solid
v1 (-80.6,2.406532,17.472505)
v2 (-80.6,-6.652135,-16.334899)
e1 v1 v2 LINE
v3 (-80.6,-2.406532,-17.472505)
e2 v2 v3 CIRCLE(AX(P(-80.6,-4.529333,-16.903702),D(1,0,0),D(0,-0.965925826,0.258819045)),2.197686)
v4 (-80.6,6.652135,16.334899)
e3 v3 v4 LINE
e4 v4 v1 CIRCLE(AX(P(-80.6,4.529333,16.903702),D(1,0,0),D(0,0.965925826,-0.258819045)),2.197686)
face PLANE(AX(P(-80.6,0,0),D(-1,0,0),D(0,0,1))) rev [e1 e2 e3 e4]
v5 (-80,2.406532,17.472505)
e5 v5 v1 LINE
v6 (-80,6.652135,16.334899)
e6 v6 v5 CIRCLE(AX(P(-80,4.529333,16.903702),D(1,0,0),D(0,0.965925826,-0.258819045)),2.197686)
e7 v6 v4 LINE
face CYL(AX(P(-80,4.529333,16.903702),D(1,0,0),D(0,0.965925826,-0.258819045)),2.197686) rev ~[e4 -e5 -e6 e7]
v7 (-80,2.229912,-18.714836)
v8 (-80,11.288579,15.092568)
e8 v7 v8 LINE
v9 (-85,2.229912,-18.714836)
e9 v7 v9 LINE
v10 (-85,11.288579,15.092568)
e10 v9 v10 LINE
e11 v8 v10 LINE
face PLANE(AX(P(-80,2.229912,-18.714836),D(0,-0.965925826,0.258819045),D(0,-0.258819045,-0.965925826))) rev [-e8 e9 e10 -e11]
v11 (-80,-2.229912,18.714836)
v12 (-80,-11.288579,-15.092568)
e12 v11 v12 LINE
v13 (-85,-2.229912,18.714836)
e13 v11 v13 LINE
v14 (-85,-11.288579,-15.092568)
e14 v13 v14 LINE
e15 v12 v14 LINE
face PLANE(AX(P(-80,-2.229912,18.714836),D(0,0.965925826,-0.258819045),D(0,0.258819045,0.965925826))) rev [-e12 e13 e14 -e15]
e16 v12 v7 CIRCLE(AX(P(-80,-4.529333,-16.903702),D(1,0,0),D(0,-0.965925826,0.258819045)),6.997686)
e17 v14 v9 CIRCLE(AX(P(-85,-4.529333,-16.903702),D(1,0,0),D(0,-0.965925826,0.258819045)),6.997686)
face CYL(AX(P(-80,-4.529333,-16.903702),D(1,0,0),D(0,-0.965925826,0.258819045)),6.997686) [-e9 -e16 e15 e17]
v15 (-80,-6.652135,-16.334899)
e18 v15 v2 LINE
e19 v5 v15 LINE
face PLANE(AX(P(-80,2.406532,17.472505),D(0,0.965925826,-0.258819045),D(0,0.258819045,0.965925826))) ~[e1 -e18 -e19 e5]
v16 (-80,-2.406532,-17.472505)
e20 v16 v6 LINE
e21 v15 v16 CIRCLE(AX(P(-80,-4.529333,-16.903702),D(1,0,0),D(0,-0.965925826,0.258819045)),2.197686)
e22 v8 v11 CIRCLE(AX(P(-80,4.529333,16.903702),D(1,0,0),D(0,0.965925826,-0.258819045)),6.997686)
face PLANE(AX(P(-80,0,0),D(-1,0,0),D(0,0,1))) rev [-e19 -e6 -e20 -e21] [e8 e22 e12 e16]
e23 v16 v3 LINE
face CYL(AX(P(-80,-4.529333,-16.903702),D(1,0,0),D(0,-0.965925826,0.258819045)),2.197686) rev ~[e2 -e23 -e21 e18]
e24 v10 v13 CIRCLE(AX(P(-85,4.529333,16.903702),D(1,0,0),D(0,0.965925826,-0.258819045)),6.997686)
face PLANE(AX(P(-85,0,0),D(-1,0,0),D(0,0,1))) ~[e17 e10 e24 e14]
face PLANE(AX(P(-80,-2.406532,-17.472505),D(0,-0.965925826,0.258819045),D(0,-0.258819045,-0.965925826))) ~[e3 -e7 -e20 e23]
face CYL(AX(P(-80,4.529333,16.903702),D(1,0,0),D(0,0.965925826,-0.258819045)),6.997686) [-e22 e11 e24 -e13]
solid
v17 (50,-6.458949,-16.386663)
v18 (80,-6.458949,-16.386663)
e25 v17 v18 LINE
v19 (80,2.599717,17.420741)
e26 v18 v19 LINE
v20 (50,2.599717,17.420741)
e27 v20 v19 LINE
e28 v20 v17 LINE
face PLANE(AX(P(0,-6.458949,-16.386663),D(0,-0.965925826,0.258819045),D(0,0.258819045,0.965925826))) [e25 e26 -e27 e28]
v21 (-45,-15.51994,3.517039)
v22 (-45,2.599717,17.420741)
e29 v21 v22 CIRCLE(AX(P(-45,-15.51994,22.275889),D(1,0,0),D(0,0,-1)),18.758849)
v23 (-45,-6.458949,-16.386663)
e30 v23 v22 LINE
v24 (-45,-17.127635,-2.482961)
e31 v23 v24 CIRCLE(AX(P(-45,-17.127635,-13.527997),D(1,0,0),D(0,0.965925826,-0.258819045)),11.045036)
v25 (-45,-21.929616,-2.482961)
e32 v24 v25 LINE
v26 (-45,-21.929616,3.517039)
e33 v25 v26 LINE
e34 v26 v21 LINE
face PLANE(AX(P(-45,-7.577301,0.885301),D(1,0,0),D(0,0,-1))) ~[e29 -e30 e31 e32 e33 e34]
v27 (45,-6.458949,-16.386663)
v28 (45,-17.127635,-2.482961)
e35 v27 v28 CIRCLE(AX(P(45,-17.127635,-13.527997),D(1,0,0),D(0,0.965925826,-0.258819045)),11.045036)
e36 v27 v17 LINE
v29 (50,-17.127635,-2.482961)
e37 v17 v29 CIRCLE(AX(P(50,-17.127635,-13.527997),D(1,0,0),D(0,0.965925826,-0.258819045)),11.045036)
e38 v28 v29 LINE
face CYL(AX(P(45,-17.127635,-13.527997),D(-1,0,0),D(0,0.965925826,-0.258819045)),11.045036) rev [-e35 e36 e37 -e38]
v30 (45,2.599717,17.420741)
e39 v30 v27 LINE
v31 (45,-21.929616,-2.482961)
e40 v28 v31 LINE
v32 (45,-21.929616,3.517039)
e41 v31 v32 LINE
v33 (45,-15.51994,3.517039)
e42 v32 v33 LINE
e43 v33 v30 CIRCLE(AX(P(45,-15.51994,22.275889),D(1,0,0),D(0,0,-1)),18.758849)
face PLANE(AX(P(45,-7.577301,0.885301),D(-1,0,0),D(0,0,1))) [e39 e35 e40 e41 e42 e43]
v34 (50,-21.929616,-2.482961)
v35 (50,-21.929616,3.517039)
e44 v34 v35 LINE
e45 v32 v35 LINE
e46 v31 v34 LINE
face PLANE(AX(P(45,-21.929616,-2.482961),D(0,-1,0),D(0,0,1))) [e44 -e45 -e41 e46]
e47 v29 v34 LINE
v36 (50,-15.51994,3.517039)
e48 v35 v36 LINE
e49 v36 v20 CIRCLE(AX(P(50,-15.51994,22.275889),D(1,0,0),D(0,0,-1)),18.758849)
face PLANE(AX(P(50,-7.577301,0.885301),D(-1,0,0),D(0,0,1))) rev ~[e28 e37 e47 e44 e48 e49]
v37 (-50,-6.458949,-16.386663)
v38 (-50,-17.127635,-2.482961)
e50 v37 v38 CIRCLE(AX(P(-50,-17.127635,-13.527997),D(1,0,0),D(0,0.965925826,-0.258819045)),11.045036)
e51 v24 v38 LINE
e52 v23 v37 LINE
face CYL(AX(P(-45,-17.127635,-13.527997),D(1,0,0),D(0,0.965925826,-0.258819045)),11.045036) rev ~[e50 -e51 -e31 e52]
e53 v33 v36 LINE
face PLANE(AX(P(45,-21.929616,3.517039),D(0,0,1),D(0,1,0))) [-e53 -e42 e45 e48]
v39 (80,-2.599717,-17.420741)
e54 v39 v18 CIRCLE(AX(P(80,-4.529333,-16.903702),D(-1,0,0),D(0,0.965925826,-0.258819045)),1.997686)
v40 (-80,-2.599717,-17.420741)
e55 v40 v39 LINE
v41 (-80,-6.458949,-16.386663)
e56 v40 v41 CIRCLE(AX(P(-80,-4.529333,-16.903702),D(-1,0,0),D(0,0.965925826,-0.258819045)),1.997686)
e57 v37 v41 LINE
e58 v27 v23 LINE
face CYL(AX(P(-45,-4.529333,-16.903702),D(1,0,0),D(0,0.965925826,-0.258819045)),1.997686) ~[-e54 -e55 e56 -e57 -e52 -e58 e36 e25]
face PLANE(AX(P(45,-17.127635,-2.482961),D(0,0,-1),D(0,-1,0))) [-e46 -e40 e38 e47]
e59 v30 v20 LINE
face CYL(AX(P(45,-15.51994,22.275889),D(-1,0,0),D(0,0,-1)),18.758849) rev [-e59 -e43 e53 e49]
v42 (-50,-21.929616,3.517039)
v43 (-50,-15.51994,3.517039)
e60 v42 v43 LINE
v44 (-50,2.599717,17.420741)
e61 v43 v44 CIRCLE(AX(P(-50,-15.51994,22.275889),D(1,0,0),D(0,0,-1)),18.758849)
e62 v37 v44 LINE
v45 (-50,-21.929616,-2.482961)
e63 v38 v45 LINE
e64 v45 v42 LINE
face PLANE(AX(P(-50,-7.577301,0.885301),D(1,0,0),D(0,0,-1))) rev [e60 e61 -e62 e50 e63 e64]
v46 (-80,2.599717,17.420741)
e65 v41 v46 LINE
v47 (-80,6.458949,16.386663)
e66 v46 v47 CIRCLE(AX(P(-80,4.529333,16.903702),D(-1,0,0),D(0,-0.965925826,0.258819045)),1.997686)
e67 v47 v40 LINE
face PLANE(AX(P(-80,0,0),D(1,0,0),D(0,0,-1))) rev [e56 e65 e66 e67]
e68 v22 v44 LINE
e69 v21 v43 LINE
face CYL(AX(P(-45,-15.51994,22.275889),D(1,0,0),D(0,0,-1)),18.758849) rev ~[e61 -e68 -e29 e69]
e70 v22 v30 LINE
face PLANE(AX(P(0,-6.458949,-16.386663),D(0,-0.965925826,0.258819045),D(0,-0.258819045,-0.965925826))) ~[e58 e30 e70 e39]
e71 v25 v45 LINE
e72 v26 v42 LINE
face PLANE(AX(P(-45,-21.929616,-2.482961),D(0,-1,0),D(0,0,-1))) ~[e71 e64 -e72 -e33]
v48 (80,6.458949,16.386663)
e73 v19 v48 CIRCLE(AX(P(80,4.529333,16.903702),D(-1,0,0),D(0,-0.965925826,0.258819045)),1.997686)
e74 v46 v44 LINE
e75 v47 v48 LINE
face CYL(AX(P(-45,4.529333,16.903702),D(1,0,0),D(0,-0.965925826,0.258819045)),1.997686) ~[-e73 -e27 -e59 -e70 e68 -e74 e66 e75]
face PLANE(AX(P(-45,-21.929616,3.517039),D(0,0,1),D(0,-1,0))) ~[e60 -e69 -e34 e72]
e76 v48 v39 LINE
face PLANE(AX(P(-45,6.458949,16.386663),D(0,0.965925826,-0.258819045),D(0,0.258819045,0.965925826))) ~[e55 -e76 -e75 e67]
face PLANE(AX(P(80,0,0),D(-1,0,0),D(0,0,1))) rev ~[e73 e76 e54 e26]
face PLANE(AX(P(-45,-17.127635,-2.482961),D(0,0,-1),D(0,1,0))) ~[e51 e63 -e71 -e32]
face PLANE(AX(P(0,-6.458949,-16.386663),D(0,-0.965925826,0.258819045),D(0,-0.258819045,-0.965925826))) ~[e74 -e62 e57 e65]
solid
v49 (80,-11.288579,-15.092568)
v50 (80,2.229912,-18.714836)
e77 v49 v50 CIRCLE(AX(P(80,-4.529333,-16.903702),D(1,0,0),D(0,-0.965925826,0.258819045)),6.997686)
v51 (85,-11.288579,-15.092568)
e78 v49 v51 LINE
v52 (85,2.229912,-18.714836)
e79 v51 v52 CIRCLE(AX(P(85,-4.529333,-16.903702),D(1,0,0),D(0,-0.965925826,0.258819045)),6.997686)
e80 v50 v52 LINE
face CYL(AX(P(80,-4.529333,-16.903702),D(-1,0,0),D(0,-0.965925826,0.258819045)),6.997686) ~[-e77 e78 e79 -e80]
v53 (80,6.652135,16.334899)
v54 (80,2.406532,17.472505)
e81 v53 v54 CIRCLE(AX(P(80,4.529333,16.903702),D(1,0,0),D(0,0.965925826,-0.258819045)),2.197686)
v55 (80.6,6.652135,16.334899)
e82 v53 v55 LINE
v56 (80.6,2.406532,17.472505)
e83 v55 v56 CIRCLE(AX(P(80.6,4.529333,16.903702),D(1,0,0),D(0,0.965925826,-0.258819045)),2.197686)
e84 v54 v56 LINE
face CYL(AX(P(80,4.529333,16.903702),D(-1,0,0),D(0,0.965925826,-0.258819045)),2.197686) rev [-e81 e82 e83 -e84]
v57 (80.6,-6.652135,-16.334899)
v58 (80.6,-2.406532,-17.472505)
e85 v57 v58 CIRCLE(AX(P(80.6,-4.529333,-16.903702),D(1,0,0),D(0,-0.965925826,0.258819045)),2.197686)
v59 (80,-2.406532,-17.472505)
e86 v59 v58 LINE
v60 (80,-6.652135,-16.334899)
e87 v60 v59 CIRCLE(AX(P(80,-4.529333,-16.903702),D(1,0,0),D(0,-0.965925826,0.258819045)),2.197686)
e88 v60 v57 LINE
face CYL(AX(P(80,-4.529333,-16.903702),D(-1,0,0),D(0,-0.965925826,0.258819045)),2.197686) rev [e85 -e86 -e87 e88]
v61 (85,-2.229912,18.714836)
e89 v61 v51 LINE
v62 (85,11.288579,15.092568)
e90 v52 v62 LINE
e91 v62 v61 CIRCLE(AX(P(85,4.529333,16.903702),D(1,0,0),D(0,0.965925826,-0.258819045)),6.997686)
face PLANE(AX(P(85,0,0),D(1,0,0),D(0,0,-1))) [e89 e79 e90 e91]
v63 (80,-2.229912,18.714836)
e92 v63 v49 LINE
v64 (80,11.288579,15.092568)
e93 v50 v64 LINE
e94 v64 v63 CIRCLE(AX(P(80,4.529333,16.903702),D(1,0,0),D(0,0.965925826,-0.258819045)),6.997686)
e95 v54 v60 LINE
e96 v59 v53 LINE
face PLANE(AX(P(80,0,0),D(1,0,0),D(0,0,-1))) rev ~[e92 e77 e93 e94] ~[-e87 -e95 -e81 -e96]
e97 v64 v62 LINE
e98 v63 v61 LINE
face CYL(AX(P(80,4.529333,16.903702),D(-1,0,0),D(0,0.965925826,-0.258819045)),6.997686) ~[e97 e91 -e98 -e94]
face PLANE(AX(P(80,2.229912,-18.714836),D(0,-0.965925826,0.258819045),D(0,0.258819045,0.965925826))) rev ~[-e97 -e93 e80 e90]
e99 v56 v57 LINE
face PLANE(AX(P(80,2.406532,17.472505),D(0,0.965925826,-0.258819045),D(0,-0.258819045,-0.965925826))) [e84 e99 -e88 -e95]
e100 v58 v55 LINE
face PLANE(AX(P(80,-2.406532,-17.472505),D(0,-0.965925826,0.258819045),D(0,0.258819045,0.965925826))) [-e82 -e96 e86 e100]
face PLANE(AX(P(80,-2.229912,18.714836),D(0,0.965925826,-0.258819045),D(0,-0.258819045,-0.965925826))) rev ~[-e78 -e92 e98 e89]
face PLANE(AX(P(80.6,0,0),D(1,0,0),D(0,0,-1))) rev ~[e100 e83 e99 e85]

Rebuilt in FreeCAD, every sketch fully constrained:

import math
import FreeCAD as App
import Part
import Sketcher

V = App.Vector
Q = App.Units.Quantity

doc = App.newDocument("Part")
body = doc.addObject("PartDesign::Body", "Body")

# Sketch on YZ plane
sketch1 = body.newObject("Sketcher::SketchObject", "Sketch")
sketch1.AttachmentSupport = (doc.getObject("YZ_Plane"), [""])
sketch1.MapMode = "FlatFace"
sketch1.addGeometry([
    Part.LineSegment(V(-2.6, -17.4, 0), V(6.5, 16.4, 0)),
    Part.ArcOfCircle(Part.Circle(V(4.5, 16.9, 0), V(0, 0, 1), 2), math.radians(-15), math.radians(165)),
    Part.LineSegment(V(2.6, 17.4, 0), V(-6.5, -16.4, 0)),
    Part.ArcOfCircle(Part.Circle(V(-4.5, -16.9, 0), V(0, 0, 1), 2), math.radians(165), math.radians(345)),
], False)
sketch1.addConstraint([
    Sketcher.Constraint("Tangent", 0, 2, 1, 1),
    Sketcher.Constraint("Tangent", 1, 2, 2, 1),
    Sketcher.Constraint("Tangent", 2, 2, 3, 1),
    Sketcher.Constraint("Tangent", 3, 2, 0, 1),
    Sketcher.Constraint("Equal", 1, 3),
    Sketcher.Constraint("Symmetric", 1, 3, 3, 3, -1, 1),
    Sketcher.Constraint("Angle", 0, Q("75 deg")),
    Sketcher.Constraint("Distance", 0, Q("35 mm")),
    Sketcher.Constraint("Radius", 1, Q("1.997686 mm")),
])
pad1 = body.newObject("PartDesign::Pad", "Pad")
pad1.Profile = sketch1
pad1.Length = 80

# Sketch on YZ plane
sketch2 = body.newObject("Sketcher::SketchObject", "Sketch001")
sketch2.AttachmentSupport = (doc.getObject("YZ_Plane"), [""])
sketch2.MapMode = "FlatFace"
sketch2.AttachmentOffset = App.Placement(V(0, 0, 45), App.Rotation())
sketch2.addGeometry([
    Part.ArcOfCircle(Part.Circle(V(-17.1, -13.5, 0), V(0, 0, 1), 11), math.radians(-15), math.radians(90)),  # 0
    Part.LineSegment(V(-17.1, -2.5, 0), V(-21.9, -2.5, 0)),  # 1
    Part.LineSegment(V(-21.9, -2.5, 0), V(-21.9, 3.5, 0)),  # 2
    Part.LineSegment(V(-21.9, 3.5, 0), V(-15.5, 3.5, 0)),  # 3
    Part.ArcOfCircle(Part.Circle(V(-15.5, 22.3, 0), V(0, 0, 1), 18.8), math.radians(-90), math.radians(-15)),  # 4
    Part.ArcOfCircle(Part.Circle(V(4.5, 16.9, 0), V(0, 0, 1), 2), math.radians(-15), math.radians(165)),  # 5
    Part.LineSegment(V(6.5, 16.4, 0), V(-2.6, -17.4, 0)),  # 6
    Part.ArcOfCircle(Part.Circle(V(-4.5, -16.9, 0), V(0, 0, 1), 2), math.radians(165), math.radians(345)),  # 7
], False)
sketch2.addConstraint([
    Sketcher.Constraint("Tangent", 0, 2, 1, 1),
    Sketcher.Constraint("Coincident", 1, 2, 2, 1),
    Sketcher.Constraint("Coincident", 2, 2, 3, 1),
    Sketcher.Constraint("Tangent", 3, 2, 4, 1),
    Sketcher.Constraint("Tangent", 4, 2, 5, 2),
    Sketcher.Constraint("Tangent", 5, 1, 6, 1),
    Sketcher.Constraint("Tangent", 6, 2, 7, 2),
    Sketcher.Constraint("Tangent", 7, 1, 0, 1),
    Sketcher.Constraint("Horizontal", 1),
    Sketcher.Constraint("Vertical", 2),
    Sketcher.Constraint("Horizontal", 3),
    Sketcher.Constraint("Equal", 5, 7),
    Sketcher.Constraint("Symmetric", 5, 3, 7, 3, -1, 1),
    Sketcher.Constraint("DistanceY", 2, 1, 2, 2, Q("6 mm")),
    Sketcher.Constraint("Angle", 6, Q("-105 deg")),
    Sketcher.Constraint("Distance", 6, Q("35 mm")),
    Sketcher.Constraint("Radius", 4, Q("18.758849 mm")),
    Sketcher.Constraint("Radius", 0, Q("11.045036 mm")),
    Sketcher.Constraint("Radius", 5, Q("1.997686 mm")),
    Sketcher.Constraint("DistanceX", 1, 2, 1, 1, Q("4.801981 mm")),
    Sketcher.Constraint("DistanceY", 0, 3, 5, 3, Q("30.431699 mm")),
])
pad2 = body.newObject("PartDesign::Pad", "Pad001")
pad2.Profile = sketch2
pad2.Length = 5
doc.recompute()

mirrored = body.newObject("PartDesign::Mirrored", "Mirrored")
mirrored.Originals = [pad1, pad2]
mirrored.MirrorPlane = (doc.getObject("YZ_Plane"), [""])
body.Tip = mirrored
body2 = doc.addObject("PartDesign::Body", "Body001")

# Sketch on YZ plane
sketch3 = body2.newObject("Sketcher::SketchObject", "Sketch002")
sketch3.AttachmentSupport = (doc.getObject("YZ_Plane001"), [""])
sketch3.MapMode = "FlatFace"
sketch3.AttachmentOffset = App.Placement(V(0, 0, 80), App.Rotation())
sketch3.addGeometry([
    Part.LineSegment(V(-2, 19, 0), V(-11, -15, 0)),
    Part.ArcOfCircle(Part.Circle(V(-5, -17, 0), V(0, 0, 1), 7), math.radians(165), math.radians(345)),
    Part.LineSegment(V(2, -19, 0), V(11, 15, 0)),
    Part.ArcOfCircle(Part.Circle(V(5, 17, 0), V(0, 0, 1), 7), math.radians(-15), math.radians(165)),
], False)
sketch3.addConstraint([
    Sketcher.Constraint("Tangent", 0, 2, 1, 1),
    Sketcher.Constraint("Tangent", 1, 2, 2, 1),
    Sketcher.Constraint("Tangent", 2, 2, 3, 1),
    Sketcher.Constraint("Tangent", 3, 2, 0, 1),
    Sketcher.Constraint("Equal", 1, 3),
    Sketcher.Constraint("Symmetric", 1, 3, 3, 3, -1, 1),
    Sketcher.Constraint("Angle", 0, Q("-105 deg")),
    Sketcher.Constraint("Distance", 0, Q("35 mm")),
    Sketcher.Constraint("Radius", 1, Q("6.997686 mm")),
])
pad3 = body2.newObject("PartDesign::Pad", "Pad002")
pad3.Profile = sketch3
pad3.Length = 5

# Sketch on YZ plane
sketch4 = body2.newObject("Sketcher::SketchObject", "Sketch003")
sketch4.AttachmentSupport = (doc.getObject("YZ_Plane001"), [""])
sketch4.MapMode = "FlatFace"
sketch4.AttachmentOffset = App.Placement(V(0, 0, 80), App.Rotation())
sketch4.addGeometry([
    Part.LineSegment(V(6.7, 16.3, 0), V(-2.4, -17.5, 0)),
    Part.ArcOfCircle(Part.Circle(V(-4.5, -16.9, 0), V(0, 0, 1), 2.2), math.radians(165), math.radians(345)),
    Part.LineSegment(V(-6.7, -16.3, 0), V(2.4, 17.5, 0)),
    Part.ArcOfCircle(Part.Circle(V(4.5, 16.9, 0), V(0, 0, 1), 2.2), math.radians(-15), math.radians(165)),
], False)
sketch4.addConstraint([
    Sketcher.Constraint("Tangent", 0, 2, 1, 2),
    Sketcher.Constraint("Tangent", 1, 1, 2, 1),
    Sketcher.Constraint("Tangent", 2, 2, 3, 2),
    Sketcher.Constraint("Tangent", 3, 1, 0, 1),
    Sketcher.Constraint("Equal", 1, 3),
    Sketcher.Constraint("Symmetric", 1, 3, 3, 3, -1, 1),
    Sketcher.Constraint("Angle", 0, Q("-105 deg")),
    Sketcher.Constraint("Distance", 0, Q("35 mm")),
    Sketcher.Constraint("Radius", 1, Q("2.197686 mm")),
])
pocket1 = body2.newObject("PartDesign::Pocket", "Pocket")
pocket1.Profile = sketch4
pocket1.Length = 0.6
pocket1.Reversed = True
body3 = doc.addObject("PartDesign::Body", "Body002")
doc.recompute()

mirroring = doc.addObject("Part::Mirroring", "Mirroring")
mirroring.Source = body2
mirroring.Base = V(0, 4.529333, 16.903702)
mirroring.Normal = V(1, 0, 0)
body3.BaseFeature = mirroring
doc.recompute()
mirroring.Visibility = False

doc.recompute()
